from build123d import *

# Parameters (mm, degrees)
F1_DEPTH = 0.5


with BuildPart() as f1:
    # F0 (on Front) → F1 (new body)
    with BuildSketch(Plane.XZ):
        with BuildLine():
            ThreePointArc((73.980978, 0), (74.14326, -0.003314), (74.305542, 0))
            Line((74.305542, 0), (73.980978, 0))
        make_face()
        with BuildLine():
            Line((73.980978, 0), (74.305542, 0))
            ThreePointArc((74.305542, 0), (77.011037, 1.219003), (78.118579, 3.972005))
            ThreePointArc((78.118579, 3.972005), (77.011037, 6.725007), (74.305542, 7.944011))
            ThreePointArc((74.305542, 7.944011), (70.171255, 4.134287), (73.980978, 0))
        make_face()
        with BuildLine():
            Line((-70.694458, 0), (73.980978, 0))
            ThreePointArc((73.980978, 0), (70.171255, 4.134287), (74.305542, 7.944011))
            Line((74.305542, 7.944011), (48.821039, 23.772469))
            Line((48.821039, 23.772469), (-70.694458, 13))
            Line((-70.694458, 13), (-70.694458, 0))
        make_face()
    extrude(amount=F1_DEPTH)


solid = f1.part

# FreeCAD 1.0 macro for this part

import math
import FreeCAD as App
import Part
import Sketcher
from FreeCAD import Vector
Q = App.Units.Quantity

doc = App.newDocument("Part")
body = doc.addObject("PartDesign::Body", "Body")

# Sketch on XZ plane
sketch1 = body.newObject("Sketcher::SketchObject", "Sketch")
sketch1.AttachmentSupport = (doc.getObject("XZ_Plane"), [""])
sketch1.MapMode = "FlatFace"
sketch1.addGeometry([
    Part.ArcOfCircle(Part.Circle(Vector(74.14326, 3.971706, 0), Vector(0, 0, 1), 3.97502), math.radians(-92.339777), math.radians(-87.660223)),  # 0
    Part.ArcOfCircle(Part.Circle(Vector(74.143262, 3.972004, 0), Vector(0, 0, 1), 3.975317), math.radians(-87.660423), math.radians(0.00002)),  # 1
    Part.ArcOfCircle(Part.Circle(Vector(74.14326, 3.972006, 0), Vector(0, 0, 1), 3.975319), math.radians(-0.000009), math.radians(87.660398)),  # 2
    Part.LineSegment(Vector(74.305542, 7.944011, 0), Vector(48.821039, 23.772469, 0)),  # 3
    Part.LineSegment(Vector(48.821039, 23.772469, 0), Vector(-70.694458, 13, 0)),  # 4
    Part.LineSegment(Vector(-70.694458, 13, 0), Vector(-70.694458, 0, 0)),  # 5
    Part.LineSegment(Vector(-70.694458, 0, 0), Vector(73.980978, 0, 0)),  # 6
], False)
sketch1.addConstraint([
    Sketcher.Constraint("Coincident", 0, 2, 1, 1),
    Sketcher.Constraint("Tangent", 1, 2, 2, 1),
    Sketcher.Constraint("Coincident", 2, 2, 3, 1),
    Sketcher.Constraint("Coincident", 3, 2, 4, 1),
    Sketcher.Constraint("Coincident", 4, 2, 5, 1),
    Sketcher.Constraint("Coincident", 5, 2, 6, 1),
    Sketcher.Constraint("Coincident", 6, 2, 0, 1),
    Sketcher.Constraint("Vertical", 5),
    Sketcher.Constraint("Horizontal", 6),
    Sketcher.Constraint("Equal", 1, 2),
    Sketcher.Constraint("PointOnObject", 0, 2, -1),
    Sketcher.Constraint("PointOnObject", 5, 2, -1),
    Sketcher.Constraint("Horizontal", 2, 3, 1, 2),
    Sketcher.Constraint("Vertical", 0, 3, 1, 3),
    Sketcher.Constraint("Vertical", 0, 2, 2, 2),
    Sketcher.Constraint("DistanceY", 5, 2, 5, 1, Q("13 mm")),
    Sketcher.Constraint("Distance", 3, Q("30 mm")),
    Sketcher.Constraint("Distance", 4, Q("120 mm")),
    Sketcher.Constraint("DistanceX", 4, 2, 2, 2, Q("145 mm")),
    Sketcher.Constraint("Radius", 0, Q("3.97502 mm")),
    Sketcher.Constraint("Radius", 2, Q("3.975319 mm")),
    Sketcher.Constraint("DistanceX", 6, 2, 1, 2, Q("4.137601 mm")),
    Sketcher.Constraint("DistanceX", -1, 1, 0, 3, Q("74.14326 mm")),
])
pad1 = body.newObject("PartDesign::Pad", "Pad")
pad1.Profile = sketch1
pad1.Length = 0.5

doc.recompute()
